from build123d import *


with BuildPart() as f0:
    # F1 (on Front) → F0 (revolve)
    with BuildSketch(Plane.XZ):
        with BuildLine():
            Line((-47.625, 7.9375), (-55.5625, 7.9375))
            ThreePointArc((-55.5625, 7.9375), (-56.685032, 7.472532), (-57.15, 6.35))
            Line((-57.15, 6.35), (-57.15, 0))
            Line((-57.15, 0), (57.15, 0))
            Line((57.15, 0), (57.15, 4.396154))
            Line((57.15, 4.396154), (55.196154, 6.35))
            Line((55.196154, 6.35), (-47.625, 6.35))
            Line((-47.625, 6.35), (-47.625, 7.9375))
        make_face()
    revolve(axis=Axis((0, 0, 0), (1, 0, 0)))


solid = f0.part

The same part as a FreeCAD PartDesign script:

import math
import FreeCAD as App
import Part
import Sketcher
from FreeCAD import Vector
Q = App.Units.Quantity

doc = App.newDocument("Part")
params = doc.addObject("Spreadsheet::Sheet", "Params")
for row, (alias, value) in enumerate([
    ("sketch1_width", "4.5 in"),
    ("sketch1_radius", "0.0625 in"),
    ("sketch1_height", "0.25 in"),
    ("sketch1_width2", "0.3125 in"),
    ("revolution_angle", "360 deg"),
], start=1):
    params.set(f"A{row}", alias)
    params.set(f"B{row}", "=" + value)
    params.setAlias(f"B{row}", alias)

body = doc.addObject("PartDesign::Body", "Body")

# Sketch on XZ plane
sketch1 = doc.addObject("Sketcher::SketchObject", "Sketch")
body.addObject(sketch1)
sketch1.AttachmentSupport = (doc.XZ_Plane, [""])
sketch1.MapMode = "FlatFace"
sketch1.addGeometry(Part.LineSegment(Vector(-47.6, 7.9, 0), Vector(-55.6, 7.9, 0)), False)
sketch1.addGeometry(Part.ArcOfCircle(Part.Circle(Vector(-55.6, 6.3, 0), Vector(0, 0, 1), 1.6), math.radians(90), math.radians(180)), False)
sketch1.addGeometry(Part.LineSegment(Vector(-57.1, 6.3, 0), Vector(-57.1, 0, 0)), False)
sketch1.addGeometry(Part.LineSegment(Vector(-57.1, 0, 0), Vector(57.1, 0, 0)), False)
sketch1.addGeometry(Part.LineSegment(Vector(57.1, 0, 0), Vector(57.1, 4.4, 0)), False)
sketch1.addGeometry(Part.LineSegment(Vector(57.1, 4.4, 0), Vector(55.2, 6.3, 0)), False)
sketch1.addGeometry(Part.LineSegment(Vector(55.2, 6.3, 0), Vector(-47.6, 6.3, 0)), False)
sketch1.addGeometry(Part.LineSegment(Vector(-47.6, 6.3, 0), Vector(-47.6, 7.9, 0)), False)
sketch1.addConstraint(Sketcher.Constraint("Tangent", 0, 2, 1, 1))
sketch1.addConstraint(Sketcher.Constraint("Tangent", 1, 2, 2, 1))
sketch1.addConstraint(Sketcher.Constraint("Coincident", 2, 2, 3, 1))
sketch1.addConstraint(Sketcher.Constraint("Coincident", 3, 2, 4, 1))
sketch1.addConstraint(Sketcher.Constraint("Coincident", 4, 2, 5, 1))
sketch1.addConstraint(Sketcher.Constraint("Coincident", 5, 2, 6, 1))
sketch1.addConstraint(Sketcher.Constraint("Coincident", 6, 2, 7, 1))
sketch1.addConstraint(Sketcher.Constraint("Coincident", 7, 2, 0, 1))
sketch1.addConstraint(Sketcher.Constraint("Horizontal", 0))
sketch1.addConstraint(Sketcher.Constraint("Vertical", 2))
sketch1.addConstraint(Sketcher.Constraint("Horizontal", 3))
sketch1.addConstraint(Sketcher.Constraint("Vertical", 4))
sketch1.addConstraint(Sketcher.Constraint("Horizontal", 6))
sketch1.addConstraint(Sketcher.Constraint("Vertical", 7))
sketch1.addConstraint(Sketcher.Constraint("Symmetric", 2, 2, 3, 2, -1, 1))
sketch1.addConstraint(Sketcher.Constraint("Horizontal", 1, 2, 5, 2))
sketch1.addConstraint(Sketcher.Constraint("DistanceX", 3, 1, 3, 2, Q("4.5 in")))
sketch1.addConstraint(Sketcher.Constraint("Angle", 5, Q("135 deg")))
sketch1.addConstraint(Sketcher.Constraint("Radius", 1, Q("0.0625 in")))
sketch1.addConstraint(Sketcher.Constraint("DistanceY", 2, 2, 2, 1, Q("0.25 in")))
sketch1.addConstraint(Sketcher.Constraint("DistanceX", 0, 2, 0, 1, Q("0.3125 in")))
sketch1.addConstraint(Sketcher.Constraint("DistanceX", 6, 2, 6, 1, 102.821154))
sketch1.setExpression("Constraints[16]", "Params.sketch1_width")
sketch1.setExpression("Constraints[18]", "Params.sketch1_radius")
sketch1.setExpression("Constraints[19]", "Params.sketch1_height")
sketch1.setExpression("Constraints[20]", "Params.sketch1_width2")
revolution = doc.addObject("PartDesign::Revolution", "Revolution")
body.addObject(revolution)
revolution.Profile = sketch1
revolution.ReferenceAxis = (sketch1, ["H_Axis"])
revolution.setExpression("Angle", "Params.revolution_angle")

doc.recompute()
